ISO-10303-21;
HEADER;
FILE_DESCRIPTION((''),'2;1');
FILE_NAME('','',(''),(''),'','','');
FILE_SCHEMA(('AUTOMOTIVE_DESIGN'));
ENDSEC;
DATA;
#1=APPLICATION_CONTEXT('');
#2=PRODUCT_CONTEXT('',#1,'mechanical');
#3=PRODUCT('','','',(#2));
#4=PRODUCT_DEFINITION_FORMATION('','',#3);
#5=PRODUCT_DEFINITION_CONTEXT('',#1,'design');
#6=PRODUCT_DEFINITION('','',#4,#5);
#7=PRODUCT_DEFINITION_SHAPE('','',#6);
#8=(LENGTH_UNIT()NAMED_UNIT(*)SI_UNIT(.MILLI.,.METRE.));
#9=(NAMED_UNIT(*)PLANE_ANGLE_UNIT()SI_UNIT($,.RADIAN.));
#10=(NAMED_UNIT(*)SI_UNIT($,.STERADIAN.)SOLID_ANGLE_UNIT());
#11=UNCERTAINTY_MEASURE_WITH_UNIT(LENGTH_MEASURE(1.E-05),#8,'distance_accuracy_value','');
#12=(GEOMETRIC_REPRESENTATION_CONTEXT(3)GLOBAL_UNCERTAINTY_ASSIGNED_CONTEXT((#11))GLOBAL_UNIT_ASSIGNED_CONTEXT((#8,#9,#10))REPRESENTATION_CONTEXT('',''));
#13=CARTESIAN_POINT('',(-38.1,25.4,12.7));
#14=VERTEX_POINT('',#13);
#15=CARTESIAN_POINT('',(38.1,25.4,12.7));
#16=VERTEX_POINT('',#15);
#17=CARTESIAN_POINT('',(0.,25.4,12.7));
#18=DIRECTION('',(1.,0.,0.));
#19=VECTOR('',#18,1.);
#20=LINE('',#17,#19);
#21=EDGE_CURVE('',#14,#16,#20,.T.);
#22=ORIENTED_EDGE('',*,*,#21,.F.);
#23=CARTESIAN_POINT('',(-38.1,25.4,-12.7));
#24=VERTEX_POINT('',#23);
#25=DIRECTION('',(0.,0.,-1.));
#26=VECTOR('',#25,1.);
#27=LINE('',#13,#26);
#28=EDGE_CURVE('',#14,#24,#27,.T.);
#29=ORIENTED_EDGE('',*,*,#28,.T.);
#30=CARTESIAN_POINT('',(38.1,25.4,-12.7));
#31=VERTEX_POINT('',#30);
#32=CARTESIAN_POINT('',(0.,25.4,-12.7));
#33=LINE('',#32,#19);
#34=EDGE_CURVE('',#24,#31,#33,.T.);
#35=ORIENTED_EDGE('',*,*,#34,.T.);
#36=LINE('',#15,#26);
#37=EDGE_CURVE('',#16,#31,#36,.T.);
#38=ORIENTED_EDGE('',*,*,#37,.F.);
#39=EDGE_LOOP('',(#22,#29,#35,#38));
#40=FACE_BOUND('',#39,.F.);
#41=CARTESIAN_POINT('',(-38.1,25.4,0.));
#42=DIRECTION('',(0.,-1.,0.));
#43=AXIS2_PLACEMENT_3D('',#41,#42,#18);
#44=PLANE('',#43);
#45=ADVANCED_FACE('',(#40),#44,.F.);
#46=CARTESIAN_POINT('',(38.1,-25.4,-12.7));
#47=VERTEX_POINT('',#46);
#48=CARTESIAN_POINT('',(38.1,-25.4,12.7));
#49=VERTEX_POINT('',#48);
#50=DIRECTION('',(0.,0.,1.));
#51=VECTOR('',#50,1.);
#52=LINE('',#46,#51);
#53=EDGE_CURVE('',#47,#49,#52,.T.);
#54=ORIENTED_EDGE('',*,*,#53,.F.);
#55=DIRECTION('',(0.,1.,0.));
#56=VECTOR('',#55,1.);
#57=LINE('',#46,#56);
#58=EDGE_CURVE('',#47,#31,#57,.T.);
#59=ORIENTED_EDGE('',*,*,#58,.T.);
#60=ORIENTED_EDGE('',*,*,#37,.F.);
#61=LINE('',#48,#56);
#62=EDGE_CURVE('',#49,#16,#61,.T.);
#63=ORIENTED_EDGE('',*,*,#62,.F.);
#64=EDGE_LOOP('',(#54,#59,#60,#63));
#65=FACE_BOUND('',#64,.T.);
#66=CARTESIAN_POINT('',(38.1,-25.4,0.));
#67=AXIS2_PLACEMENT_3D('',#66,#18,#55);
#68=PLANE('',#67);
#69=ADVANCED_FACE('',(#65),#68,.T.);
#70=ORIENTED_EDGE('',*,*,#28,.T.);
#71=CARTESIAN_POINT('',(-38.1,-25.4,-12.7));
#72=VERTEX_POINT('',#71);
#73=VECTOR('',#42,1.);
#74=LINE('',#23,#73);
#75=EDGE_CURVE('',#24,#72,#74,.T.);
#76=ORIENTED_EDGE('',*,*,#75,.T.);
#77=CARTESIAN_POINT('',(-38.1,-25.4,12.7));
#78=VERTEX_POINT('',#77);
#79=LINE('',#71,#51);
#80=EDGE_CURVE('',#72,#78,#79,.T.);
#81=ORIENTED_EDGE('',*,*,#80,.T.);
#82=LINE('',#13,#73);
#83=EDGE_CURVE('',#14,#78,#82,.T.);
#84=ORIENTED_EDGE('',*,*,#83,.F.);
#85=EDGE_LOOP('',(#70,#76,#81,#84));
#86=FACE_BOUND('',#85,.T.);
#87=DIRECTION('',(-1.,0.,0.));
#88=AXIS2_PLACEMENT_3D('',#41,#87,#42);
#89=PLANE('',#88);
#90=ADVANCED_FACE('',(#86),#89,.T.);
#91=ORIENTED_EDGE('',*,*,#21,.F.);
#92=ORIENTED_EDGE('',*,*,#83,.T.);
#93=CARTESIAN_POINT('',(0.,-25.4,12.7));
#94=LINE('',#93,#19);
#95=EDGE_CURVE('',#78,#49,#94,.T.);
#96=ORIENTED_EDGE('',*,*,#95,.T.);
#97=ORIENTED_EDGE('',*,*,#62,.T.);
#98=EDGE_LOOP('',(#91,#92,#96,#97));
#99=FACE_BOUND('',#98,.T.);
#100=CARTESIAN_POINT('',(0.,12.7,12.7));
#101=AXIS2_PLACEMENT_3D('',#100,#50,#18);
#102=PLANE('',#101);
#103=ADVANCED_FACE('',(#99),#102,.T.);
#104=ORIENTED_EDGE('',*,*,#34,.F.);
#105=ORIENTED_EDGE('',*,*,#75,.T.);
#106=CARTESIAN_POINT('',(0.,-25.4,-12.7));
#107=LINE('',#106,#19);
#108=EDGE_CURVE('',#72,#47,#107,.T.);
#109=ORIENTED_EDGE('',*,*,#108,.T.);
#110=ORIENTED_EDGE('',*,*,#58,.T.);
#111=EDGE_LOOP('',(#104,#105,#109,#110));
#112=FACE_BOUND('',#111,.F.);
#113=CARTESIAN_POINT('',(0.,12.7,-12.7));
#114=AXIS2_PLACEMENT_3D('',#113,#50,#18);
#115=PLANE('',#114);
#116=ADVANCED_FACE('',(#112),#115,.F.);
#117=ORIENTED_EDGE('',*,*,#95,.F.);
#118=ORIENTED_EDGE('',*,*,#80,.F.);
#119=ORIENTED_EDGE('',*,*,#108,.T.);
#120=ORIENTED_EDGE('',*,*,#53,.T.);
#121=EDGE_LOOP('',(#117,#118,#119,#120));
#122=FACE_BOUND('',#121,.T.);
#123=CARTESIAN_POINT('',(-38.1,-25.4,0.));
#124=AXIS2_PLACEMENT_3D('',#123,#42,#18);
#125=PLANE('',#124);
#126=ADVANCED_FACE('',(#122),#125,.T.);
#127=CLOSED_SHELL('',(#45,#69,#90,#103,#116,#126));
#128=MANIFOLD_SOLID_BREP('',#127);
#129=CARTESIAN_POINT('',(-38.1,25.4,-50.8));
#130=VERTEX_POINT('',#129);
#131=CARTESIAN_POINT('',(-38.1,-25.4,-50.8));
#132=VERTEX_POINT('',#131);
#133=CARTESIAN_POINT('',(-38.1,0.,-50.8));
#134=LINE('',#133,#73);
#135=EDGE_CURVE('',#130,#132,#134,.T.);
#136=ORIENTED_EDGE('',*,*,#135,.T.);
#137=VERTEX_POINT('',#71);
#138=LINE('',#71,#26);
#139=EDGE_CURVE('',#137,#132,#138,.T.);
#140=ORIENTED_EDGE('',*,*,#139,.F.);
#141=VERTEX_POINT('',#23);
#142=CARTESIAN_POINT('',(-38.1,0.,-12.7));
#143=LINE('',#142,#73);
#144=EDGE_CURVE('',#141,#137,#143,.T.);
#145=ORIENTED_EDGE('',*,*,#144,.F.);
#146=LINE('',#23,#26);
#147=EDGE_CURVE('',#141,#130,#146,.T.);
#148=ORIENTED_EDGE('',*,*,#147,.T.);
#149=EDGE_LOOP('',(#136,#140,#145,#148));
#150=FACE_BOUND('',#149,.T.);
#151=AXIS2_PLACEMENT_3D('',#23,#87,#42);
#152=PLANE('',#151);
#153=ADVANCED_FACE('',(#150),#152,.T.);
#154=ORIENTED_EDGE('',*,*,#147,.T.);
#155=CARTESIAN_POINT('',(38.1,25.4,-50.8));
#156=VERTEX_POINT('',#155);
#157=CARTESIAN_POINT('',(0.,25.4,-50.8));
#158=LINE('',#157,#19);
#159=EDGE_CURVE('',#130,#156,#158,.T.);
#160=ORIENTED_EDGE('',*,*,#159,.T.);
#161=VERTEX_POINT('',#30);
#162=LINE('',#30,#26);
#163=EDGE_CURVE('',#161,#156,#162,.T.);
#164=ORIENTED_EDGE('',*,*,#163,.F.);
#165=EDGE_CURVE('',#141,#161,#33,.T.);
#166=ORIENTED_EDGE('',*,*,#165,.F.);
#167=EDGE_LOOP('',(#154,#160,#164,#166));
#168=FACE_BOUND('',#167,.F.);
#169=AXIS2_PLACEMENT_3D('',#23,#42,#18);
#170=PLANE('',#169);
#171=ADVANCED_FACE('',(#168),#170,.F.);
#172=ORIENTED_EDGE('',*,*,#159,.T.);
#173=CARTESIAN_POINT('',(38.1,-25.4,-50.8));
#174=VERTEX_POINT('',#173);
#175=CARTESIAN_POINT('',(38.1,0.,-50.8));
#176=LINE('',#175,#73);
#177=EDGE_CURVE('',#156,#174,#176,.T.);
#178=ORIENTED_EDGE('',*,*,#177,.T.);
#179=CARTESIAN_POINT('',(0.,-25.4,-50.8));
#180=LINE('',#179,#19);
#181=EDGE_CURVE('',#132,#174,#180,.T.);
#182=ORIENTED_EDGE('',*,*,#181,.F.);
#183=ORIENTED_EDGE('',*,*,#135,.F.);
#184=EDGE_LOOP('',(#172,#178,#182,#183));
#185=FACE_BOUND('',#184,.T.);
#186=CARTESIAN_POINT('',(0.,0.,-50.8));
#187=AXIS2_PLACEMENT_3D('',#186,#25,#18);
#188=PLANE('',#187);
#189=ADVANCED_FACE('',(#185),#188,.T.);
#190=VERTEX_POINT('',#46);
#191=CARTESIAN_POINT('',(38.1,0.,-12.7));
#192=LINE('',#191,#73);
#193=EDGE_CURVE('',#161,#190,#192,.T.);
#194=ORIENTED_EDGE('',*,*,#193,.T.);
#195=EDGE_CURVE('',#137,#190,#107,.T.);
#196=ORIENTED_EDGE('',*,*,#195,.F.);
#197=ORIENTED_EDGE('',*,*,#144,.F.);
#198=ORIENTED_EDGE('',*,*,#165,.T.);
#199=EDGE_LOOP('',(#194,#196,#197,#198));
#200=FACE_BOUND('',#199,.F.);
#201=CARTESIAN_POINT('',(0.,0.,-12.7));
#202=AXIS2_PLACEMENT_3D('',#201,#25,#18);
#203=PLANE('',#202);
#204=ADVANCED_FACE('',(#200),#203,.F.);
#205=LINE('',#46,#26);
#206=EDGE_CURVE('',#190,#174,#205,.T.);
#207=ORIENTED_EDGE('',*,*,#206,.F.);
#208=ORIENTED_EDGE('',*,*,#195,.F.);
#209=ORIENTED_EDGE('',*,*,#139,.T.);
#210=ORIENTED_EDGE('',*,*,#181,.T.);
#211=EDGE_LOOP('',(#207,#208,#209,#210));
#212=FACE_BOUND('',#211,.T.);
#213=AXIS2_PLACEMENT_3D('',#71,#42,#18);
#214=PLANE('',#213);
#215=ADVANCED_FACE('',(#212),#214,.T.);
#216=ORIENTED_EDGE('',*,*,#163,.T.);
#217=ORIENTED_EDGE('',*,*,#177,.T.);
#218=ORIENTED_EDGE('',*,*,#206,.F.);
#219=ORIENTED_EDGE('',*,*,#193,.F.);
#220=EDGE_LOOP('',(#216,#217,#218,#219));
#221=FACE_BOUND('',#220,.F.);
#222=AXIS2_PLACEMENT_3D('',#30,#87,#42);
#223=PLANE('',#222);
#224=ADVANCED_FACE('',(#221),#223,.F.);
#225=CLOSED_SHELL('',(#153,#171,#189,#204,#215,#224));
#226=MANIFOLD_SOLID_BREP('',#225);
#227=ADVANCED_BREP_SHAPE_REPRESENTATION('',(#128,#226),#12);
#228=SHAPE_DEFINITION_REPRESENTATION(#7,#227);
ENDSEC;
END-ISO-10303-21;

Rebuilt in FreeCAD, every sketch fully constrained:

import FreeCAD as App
import Part
import Sketcher
from FreeCAD import Vector
Q = App.Units.Quantity

doc = App.newDocument("Part")
body = doc.addObject("PartDesign::Body", "Body")

sketch1 = doc.addObject("Sketcher::SketchObject", "Sketch")
body.addObject(sketch1)
sketch1.AttachmentSupport = (doc.XY_Plane, [""])
sketch1.MapMode = "FlatFace"
sketch1.addGeometry([
    Part.LineSegment(Vector(-38, 25, 0), Vector(-38, -25, 0)),
    Part.LineSegment(Vector(-38, -25, 0), Vector(38, -25, 0)),
    Part.LineSegment(Vector(38, -25, 0), Vector(38, 25, 0)),
    Part.LineSegment(Vector(38, 25, 0), Vector(-38, 25, 0)),
], False)
sketch1.addConstraint([
    Sketcher.Constraint("Coincident", 0, 2, 1, 1),
    Sketcher.Constraint("Coincident", 1, 2, 2, 1),
    Sketcher.Constraint("Coincident", 2, 2, 3, 1),
    Sketcher.Constraint("Coincident", 3, 2, 0, 1),
    Sketcher.Constraint("Vertical", 0),
    Sketcher.Constraint("Horizontal", 1),
    Sketcher.Constraint("Vertical", 2),
    Sketcher.Constraint("Horizontal", 3),
    Sketcher.Constraint("Symmetric", 0, 2, 2, 2, -1, 1),
    Sketcher.Constraint("DistanceX", 1, 1, 1, 2, Q("3 in")),
    Sketcher.Constraint("DistanceY", 0, 2, 0, 1, Q("2 in")),
])
pad1 = doc.addObject("PartDesign::Pad", "Pad")
body.addObject(pad1)
pad1.Profile = sketch1
pad1.Length = Q("1 in")
pad1.Midplane = True
body2 = doc.addObject("PartDesign::Body", "Body001")

sketch2 = doc.addObject("Sketcher::SketchObject", "Sketch001")
body2.addObject(sketch2)
sketch2.AttachmentSupport = (doc.getObject("XY_Plane001"), [""])
sketch2.MapMode = "FlatFace"
sketch2.AttachmentOffset = App.Placement(Vector(0, 0, -0.5 * 25.4), App.Rotation())
sketch2.addGeometry([
    Part.LineSegment(Vector(-38, -25, 0), Vector(-38, 25, 0)),
    Part.LineSegment(Vector(-38, 25, 0), Vector(38, 25, 0)),
    Part.LineSegment(Vector(38, 25, 0), Vector(38, -25, 0)),
    Part.LineSegment(Vector(38, -25, 0), Vector(-38, -25, 0)),
], False)
sketch2.addConstraint([
    Sketcher.Constraint("Coincident", 0, 2, 1, 1),
    Sketcher.Constraint("Coincident", 1, 2, 2, 1),
    Sketcher.Constraint("Coincident", 2, 2, 3, 1),
    Sketcher.Constraint("Coincident", 3, 2, 0, 1),
    Sketcher.Constraint("Vertical", 0),
    Sketcher.Constraint("Horizontal", 1),
    Sketcher.Constraint("Vertical", 2),
    Sketcher.Constraint("Horizontal", 3),
    Sketcher.Constraint("Symmetric", 0, 2, 2, 2, -1, 1),
    Sketcher.Constraint("DistanceX", 1, 1, 1, 2, Q("3 in")),
    Sketcher.Constraint("DistanceY", 0, 1, 0, 2, Q("2 in")),
])
pad2 = doc.addObject("PartDesign::Pad", "Pad001")
body2.addObject(pad2)
pad2.Profile = sketch2
pad2.Length = Q("1.5 in")
pad2.Reversed = True

doc.recompute()
